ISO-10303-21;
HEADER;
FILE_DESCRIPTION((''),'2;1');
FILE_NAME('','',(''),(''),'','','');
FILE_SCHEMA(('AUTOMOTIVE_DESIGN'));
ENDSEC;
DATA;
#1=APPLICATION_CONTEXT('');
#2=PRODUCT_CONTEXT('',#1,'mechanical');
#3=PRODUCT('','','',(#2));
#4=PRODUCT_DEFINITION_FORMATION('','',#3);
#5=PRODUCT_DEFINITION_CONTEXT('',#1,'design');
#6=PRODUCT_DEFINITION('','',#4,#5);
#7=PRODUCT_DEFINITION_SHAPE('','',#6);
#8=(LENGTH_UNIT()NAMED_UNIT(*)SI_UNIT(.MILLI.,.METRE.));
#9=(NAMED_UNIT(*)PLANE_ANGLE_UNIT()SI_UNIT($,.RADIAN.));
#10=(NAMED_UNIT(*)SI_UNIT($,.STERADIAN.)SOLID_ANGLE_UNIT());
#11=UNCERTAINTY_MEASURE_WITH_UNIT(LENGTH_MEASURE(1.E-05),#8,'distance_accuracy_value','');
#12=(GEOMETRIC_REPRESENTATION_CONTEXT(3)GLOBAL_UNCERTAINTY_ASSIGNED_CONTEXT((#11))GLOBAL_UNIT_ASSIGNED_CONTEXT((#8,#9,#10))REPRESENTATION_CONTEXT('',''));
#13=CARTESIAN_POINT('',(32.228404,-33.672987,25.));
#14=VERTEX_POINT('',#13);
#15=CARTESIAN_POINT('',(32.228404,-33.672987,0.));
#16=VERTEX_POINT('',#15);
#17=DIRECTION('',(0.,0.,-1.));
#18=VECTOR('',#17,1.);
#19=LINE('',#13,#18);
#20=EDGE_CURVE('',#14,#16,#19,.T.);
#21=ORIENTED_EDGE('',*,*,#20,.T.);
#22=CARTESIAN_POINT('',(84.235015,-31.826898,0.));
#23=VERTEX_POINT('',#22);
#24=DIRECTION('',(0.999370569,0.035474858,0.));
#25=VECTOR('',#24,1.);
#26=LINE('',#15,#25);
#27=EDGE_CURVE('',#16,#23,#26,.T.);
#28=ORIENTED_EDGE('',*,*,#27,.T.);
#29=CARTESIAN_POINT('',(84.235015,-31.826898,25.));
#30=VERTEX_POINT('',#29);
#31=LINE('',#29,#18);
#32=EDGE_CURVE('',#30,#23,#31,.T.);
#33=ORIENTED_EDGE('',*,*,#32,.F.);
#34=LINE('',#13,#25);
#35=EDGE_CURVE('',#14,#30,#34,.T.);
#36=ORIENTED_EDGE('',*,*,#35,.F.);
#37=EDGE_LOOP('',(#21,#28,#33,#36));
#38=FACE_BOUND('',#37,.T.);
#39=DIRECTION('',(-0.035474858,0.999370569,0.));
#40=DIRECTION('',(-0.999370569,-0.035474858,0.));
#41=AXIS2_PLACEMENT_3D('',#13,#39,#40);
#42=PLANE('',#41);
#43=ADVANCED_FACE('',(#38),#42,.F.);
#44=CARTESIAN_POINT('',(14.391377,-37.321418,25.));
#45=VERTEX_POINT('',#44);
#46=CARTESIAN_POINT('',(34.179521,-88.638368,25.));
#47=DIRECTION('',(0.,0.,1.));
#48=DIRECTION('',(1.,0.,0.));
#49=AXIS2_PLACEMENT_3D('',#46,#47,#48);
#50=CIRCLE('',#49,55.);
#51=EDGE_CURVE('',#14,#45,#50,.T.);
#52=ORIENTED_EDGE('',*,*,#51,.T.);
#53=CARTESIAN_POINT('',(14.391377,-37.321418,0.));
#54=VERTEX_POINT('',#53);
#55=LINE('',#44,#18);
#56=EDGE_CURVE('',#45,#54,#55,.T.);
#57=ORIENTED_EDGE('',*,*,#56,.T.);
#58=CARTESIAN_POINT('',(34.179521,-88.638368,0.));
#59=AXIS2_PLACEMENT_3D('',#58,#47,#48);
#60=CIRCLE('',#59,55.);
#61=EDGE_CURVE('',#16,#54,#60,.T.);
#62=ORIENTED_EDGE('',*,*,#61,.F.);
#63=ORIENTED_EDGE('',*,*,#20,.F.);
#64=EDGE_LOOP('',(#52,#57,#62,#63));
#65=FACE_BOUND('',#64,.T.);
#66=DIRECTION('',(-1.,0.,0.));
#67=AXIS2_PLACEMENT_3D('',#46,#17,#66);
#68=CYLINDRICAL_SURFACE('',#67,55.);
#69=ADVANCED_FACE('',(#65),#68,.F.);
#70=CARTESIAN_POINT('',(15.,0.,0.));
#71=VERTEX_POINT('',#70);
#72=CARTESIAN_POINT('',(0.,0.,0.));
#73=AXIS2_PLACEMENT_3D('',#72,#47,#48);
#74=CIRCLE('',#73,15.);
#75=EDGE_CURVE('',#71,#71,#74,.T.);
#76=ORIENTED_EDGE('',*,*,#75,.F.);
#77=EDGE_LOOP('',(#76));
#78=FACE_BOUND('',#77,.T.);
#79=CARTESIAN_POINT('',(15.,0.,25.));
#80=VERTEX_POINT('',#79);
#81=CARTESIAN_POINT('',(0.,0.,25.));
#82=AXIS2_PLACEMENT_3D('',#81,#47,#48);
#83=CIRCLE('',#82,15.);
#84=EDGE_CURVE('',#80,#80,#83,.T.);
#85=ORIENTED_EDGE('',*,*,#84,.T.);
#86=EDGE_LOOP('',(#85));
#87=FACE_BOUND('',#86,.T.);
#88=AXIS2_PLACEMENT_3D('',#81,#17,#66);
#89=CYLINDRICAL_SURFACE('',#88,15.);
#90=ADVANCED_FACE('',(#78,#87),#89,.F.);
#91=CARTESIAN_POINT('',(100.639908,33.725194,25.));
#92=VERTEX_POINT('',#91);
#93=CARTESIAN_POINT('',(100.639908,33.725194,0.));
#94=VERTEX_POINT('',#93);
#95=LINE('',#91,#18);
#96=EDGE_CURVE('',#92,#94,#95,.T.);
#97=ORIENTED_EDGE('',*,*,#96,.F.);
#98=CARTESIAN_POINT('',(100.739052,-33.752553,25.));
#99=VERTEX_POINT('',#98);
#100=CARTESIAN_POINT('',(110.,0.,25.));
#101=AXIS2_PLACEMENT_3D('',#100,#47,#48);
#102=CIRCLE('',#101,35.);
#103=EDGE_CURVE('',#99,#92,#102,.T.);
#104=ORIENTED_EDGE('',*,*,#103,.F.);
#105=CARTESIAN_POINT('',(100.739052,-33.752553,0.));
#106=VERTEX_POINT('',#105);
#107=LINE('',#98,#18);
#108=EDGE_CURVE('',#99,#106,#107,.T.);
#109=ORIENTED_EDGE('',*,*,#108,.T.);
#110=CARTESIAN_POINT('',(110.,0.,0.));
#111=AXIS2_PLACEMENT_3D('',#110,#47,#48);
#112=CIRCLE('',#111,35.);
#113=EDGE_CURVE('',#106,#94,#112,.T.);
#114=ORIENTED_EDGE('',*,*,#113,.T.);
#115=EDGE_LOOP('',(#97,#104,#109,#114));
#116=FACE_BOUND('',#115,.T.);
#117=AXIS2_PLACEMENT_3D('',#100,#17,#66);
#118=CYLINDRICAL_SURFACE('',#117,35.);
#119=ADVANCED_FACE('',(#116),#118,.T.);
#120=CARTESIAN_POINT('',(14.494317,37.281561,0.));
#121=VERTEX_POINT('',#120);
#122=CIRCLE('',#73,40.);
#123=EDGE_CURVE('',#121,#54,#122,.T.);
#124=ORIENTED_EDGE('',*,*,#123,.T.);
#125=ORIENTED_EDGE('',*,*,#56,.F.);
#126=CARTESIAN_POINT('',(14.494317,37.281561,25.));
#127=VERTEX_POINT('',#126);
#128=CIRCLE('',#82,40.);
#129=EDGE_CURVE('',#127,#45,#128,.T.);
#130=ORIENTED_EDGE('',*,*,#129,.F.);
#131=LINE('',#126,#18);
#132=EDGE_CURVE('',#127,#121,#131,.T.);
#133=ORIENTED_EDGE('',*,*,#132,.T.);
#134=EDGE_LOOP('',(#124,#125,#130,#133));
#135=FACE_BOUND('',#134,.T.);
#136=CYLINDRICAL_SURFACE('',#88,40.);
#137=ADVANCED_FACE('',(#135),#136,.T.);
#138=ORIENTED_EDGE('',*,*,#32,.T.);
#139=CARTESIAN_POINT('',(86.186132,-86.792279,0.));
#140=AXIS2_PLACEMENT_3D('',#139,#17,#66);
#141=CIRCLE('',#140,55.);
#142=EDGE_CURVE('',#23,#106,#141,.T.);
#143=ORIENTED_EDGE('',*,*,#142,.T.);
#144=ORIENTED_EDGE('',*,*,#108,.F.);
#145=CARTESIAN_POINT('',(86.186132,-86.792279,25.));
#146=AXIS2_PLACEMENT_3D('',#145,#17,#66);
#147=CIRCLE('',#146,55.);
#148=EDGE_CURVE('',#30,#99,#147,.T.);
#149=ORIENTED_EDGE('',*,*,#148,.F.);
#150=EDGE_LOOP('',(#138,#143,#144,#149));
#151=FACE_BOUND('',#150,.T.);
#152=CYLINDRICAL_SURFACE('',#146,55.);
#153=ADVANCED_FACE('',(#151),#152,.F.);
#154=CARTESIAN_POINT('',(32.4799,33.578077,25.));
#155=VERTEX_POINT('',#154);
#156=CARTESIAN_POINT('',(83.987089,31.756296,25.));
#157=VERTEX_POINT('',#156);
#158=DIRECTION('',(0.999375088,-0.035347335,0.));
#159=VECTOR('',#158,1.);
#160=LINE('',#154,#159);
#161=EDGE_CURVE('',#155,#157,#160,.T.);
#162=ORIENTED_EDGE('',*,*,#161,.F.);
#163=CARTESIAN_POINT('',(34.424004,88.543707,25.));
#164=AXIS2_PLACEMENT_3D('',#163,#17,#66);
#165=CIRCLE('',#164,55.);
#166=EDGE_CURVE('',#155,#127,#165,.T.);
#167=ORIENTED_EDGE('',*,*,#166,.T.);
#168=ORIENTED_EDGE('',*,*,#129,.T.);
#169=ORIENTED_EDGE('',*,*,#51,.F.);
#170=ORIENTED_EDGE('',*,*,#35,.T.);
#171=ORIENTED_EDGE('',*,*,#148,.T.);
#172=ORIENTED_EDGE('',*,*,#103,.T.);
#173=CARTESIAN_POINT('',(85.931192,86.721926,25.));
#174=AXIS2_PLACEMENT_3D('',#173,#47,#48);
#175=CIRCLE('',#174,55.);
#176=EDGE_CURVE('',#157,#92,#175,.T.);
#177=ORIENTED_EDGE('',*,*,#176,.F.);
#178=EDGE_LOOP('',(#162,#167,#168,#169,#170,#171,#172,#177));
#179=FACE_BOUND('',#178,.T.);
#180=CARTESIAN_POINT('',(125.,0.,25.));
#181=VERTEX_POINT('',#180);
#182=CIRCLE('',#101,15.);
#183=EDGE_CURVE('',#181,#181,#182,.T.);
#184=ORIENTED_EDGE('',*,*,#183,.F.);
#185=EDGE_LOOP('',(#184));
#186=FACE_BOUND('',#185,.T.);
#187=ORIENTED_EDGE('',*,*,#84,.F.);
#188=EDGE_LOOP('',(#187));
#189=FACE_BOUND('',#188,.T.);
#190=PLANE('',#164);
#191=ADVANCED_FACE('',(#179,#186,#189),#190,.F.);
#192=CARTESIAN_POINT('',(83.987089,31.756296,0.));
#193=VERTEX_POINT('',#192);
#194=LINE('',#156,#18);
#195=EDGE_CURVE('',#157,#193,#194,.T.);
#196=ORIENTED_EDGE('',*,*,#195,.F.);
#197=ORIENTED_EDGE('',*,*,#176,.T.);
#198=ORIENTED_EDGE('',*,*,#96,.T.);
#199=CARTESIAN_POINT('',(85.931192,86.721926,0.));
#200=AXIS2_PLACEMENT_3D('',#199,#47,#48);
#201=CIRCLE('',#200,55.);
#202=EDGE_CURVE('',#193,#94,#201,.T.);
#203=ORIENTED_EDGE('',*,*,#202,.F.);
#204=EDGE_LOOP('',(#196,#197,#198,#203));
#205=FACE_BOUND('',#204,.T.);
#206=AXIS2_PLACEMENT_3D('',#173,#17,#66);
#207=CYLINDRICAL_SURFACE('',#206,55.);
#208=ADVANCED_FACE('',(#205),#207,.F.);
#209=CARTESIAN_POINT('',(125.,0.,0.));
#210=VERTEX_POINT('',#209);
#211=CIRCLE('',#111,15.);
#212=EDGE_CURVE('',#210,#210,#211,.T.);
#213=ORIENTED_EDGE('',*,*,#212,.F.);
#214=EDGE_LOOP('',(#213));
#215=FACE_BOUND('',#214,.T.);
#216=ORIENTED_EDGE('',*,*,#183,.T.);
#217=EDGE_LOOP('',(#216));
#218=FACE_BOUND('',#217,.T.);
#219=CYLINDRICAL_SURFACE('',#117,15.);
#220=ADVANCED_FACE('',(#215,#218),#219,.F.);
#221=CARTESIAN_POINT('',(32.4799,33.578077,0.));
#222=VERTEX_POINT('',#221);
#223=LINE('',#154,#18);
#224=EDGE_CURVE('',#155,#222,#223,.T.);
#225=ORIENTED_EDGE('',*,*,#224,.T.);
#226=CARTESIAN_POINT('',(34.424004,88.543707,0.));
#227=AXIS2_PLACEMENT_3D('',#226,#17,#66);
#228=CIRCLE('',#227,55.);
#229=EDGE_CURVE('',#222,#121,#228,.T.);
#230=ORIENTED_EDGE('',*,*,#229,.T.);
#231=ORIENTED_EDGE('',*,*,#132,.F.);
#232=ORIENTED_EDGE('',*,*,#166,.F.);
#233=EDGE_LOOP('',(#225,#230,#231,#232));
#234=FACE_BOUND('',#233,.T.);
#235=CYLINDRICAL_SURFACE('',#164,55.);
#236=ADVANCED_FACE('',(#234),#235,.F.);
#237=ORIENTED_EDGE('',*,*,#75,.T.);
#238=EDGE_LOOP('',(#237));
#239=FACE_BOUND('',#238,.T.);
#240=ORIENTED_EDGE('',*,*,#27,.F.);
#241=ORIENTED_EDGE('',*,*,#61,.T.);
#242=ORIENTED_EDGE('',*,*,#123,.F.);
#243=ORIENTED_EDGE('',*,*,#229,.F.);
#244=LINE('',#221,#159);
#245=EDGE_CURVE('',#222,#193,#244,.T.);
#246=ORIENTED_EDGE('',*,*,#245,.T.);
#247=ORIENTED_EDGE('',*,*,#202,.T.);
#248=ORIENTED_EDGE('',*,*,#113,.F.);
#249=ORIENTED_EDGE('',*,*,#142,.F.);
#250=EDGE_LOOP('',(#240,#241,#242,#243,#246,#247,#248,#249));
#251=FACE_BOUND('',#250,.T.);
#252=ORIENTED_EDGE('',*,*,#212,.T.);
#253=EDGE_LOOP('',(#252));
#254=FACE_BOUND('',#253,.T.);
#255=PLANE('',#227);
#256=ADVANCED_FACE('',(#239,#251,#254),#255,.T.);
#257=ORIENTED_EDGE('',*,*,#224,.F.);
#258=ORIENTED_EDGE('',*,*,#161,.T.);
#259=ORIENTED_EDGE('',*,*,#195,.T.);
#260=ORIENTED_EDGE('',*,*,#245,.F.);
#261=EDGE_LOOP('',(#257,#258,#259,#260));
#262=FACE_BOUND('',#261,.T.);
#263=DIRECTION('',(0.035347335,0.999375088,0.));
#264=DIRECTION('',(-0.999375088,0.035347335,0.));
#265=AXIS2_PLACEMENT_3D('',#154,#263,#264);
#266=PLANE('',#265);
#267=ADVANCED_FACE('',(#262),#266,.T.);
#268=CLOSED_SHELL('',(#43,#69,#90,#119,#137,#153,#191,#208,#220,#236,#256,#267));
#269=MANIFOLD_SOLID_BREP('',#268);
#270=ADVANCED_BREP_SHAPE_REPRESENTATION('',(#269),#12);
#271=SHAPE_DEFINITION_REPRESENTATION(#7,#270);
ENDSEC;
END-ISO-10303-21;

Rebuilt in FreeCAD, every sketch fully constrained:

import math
import FreeCAD as App
import Part
import Sketcher
Q = App.Units.Quantity

doc = App.newDocument("Part")
body = doc.addObject("PartDesign::Body", "Body")

sketch1 = body.newObject("Sketcher::SketchObject", "Sketch")
sketch1.AttachmentSupport = (doc.getObject("XY_Plane"), [""])
sketch1.MapMode = "FlatFace"
sketch1.addGeometry(Part.LineSegment(App.Vector(84, 32, 0), App.Vector(32, 34, 0)), False)
sketch1.addGeometry(Part.ArcOfCircle(Part.Circle(App.Vector(34, 89, 0), App.Vector(0, 0, 1), 55), math.radians(-111.25), math.radians(-92.03)), False)
sketch1.addGeometry(Part.ArcOfCircle(Part.Circle(App.Vector(0, 0, 0), App.Vector(0, 0, 1), 40), math.radians(69), math.radians(291)), False)
sketch1.addGeometry(Part.ArcOfCircle(Part.Circle(App.Vector(34, -89, 0), App.Vector(0, 0, 1), 55), math.radians(92.03), math.radians(111.09)), False)
sketch1.addGeometry(Part.LineSegment(App.Vector(32, -34, 0), App.Vector(84, -32, 0)), False)
sketch1.addGeometry(Part.ArcOfCircle(Part.Circle(App.Vector(86, -87, 0), App.Vector(0, 0, 1), 55), math.radians(74.66), math.radians(92.03)), False)
sketch1.addGeometry(Part.ArcOfCircle(Part.Circle(App.Vector(110, 0, 0), App.Vector(0, 0, 1), 35), math.radians(-105), math.radians(106)), False)
sketch1.addGeometry(Part.ArcOfCircle(Part.Circle(App.Vector(86, 87, 0), App.Vector(0, 0, 1), 55), math.radians(-92.03), math.radians(-74.49)), False)
sketch1.addGeometry(Part.Circle(App.Vector(110, 0, 0), App.Vector(0, 0, 1), 15), False)
sketch1.addGeometry(Part.Circle(App.Vector(0, 0, 0), App.Vector(0, 0, 1), 15), False)
sketch1.addConstraint(Sketcher.Constraint("Tangent", 0, 2, 1, 2))
sketch1.addConstraint(Sketcher.Constraint("Tangent", 1, 1, 2, 1))
sketch1.addConstraint(Sketcher.Constraint("Tangent", 2, 2, 3, 2))
sketch1.addConstraint(Sketcher.Constraint("Tangent", 3, 1, 4, 1))
sketch1.addConstraint(Sketcher.Constraint("Tangent", 4, 2, 5, 2))
sketch1.addConstraint(Sketcher.Constraint("Tangent", 5, 1, 6, 1))
sketch1.addConstraint(Sketcher.Constraint("Tangent", 6, 2, 7, 2))
sketch1.addConstraint(Sketcher.Constraint("Tangent", 7, 1, 0, 1))
sketch1.addConstraint(Sketcher.Constraint("Coincident", 2, 3, -1, 1))
sketch1.addConstraint(Sketcher.Constraint("Coincident", 9, 3, -1, 1))
sketch1.addConstraint(Sketcher.Constraint("Coincident", 8, 3, 6, 3))
sketch1.addConstraint(Sketcher.Constraint("Equal", 1, 3))
sketch1.addConstraint(Sketcher.Constraint("Equal", 3, 5))
sketch1.addConstraint(Sketcher.Constraint("Equal", 5, 7))
sketch1.addConstraint(Sketcher.Constraint("Equal", 8, 9))
sketch1.addConstraint(Sketcher.Constraint("PointOnObject", 6, 3, -1))
sketch1.addConstraint(Sketcher.Constraint("Diameter", 8, Q("30 mm")))
sketch1.addConstraint(Sketcher.Constraint("Radius", 1, Q("55 mm")))
sketch1.addConstraint(Sketcher.Constraint("Radius", 2, Q("40 mm")))
sketch1.addConstraint(Sketcher.Constraint("Radius", 6, Q("35 mm")))
sketch1.addConstraint(Sketcher.Constraint("DistanceX", -1, 1, 6, 3, Q("110 mm")))
sketch1.addConstraint(Sketcher.Constraint("DistanceX", -1, 1, 0, 2, Q("32.4799 mm")))
sketch1.addConstraint(Sketcher.Constraint("DistanceX", -1, 1, 3, 3, Q("34.179521 mm")))
sketch1.addConstraint(Sketcher.Constraint("DistanceY", 5, 3, -1, 1, Q("86.792279 mm")))
sketch1.addConstraint(Sketcher.Constraint("DistanceX", -1, 1, 6, 2, Q("100.639908 mm")))
pad1 = body.newObject("PartDesign::Pad", "Pad")
pad1.Profile = sketch1
pad1.Length = 25

doc.recompute()
